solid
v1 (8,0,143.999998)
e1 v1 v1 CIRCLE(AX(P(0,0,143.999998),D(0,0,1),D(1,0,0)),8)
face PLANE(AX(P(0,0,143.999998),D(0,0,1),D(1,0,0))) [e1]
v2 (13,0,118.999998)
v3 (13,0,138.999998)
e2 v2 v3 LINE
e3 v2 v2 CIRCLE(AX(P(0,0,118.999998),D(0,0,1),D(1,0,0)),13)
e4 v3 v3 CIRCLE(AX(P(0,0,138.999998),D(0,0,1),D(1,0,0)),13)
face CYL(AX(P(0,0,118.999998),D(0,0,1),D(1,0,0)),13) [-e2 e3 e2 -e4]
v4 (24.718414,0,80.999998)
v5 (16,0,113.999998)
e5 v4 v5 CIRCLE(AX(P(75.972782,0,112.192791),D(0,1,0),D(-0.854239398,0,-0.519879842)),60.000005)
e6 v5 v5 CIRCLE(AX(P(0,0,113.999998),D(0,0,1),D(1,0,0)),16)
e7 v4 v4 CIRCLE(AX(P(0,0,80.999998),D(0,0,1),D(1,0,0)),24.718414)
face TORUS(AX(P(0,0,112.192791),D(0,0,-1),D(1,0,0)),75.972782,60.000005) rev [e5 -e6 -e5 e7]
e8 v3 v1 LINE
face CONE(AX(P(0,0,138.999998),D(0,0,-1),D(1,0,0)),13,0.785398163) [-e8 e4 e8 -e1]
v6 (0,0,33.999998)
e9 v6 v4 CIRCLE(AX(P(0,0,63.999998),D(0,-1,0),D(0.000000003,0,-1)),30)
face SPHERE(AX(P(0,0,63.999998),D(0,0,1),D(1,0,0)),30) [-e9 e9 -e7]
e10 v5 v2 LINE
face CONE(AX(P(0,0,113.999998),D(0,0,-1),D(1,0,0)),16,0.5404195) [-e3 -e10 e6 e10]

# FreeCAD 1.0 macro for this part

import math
import FreeCAD as App
import Part
import Sketcher
from FreeCAD import Vector
Q = App.Units.Quantity

doc = App.newDocument("Part")
params = doc.addObject("Spreadsheet::Sheet", "Params")
for row, (alias, value) in enumerate([
    ("sketch1_radius", "30 mm"),
    ("sketch1_width", "8 mm"),
    ("sketch1_height", "110 mm"),
    ("sketch1_height2", "20 mm"),
    ("sketch1_height3", "17 mm"),
    ("revolution_angle", "360 deg"),
], start=1):
    params.set(f"A{row}", alias)
    params.set(f"B{row}", "=" + value)
    params.setAlias(f"B{row}", alias)

body = doc.addObject("PartDesign::Body", "Body")

sketch1 = body.newObject("Sketcher::SketchObject", "Sketch")
sketch1.AttachmentSupport = (doc.getObject("XZ_Plane"), [""])
sketch1.MapMode = "FlatFace"
sketch1.addGeometry([
    Part.LineSegment(Vector(8, 144, 0), Vector(0, 144, 0)),
    Part.LineSegment(Vector(0, 144, 0), Vector(0, 34, 0)),
    Part.ArcOfCircle(Part.Circle(Vector(0, 64, 0), Vector(0, 0, 1), 30), math.radians(-90), math.radians(35)),
    Part.ArcOfCircle(Part.Circle(Vector(76, 112, 0), Vector(0, 0, 1), 60), math.radians(178), math.radians(211)),
    Part.LineSegment(Vector(16, 114, 0), Vector(13, 119, 0)),
    Part.LineSegment(Vector(13, 119, 0), Vector(13, 139, 0)),
    Part.LineSegment(Vector(13, 139, 0), Vector(8, 144, 0)),
], False)
sketch1.addConstraint([
    Sketcher.Constraint("Coincident", 0, 2, 1, 1),
    Sketcher.Constraint("Coincident", 1, 2, 2, 1),
    Sketcher.Constraint("Coincident", 2, 2, 3, 2),
    Sketcher.Constraint("Coincident", 3, 1, 4, 1),
    Sketcher.Constraint("Coincident", 4, 2, 5, 1),
    Sketcher.Constraint("Coincident", 5, 2, 6, 1),
    Sketcher.Constraint("Coincident", 6, 2, 0, 1),
    Sketcher.Constraint("Horizontal", 0),
    Sketcher.Constraint("Vertical", 1),
    Sketcher.Constraint("Vertical", 5),
    Sketcher.Constraint("PointOnObject", 2, 3, -2),
    Sketcher.Constraint("PointOnObject", 0, 2, -2),
    Sketcher.Constraint("Radius", 2, Q("30 mm")),
    Sketcher.Constraint("DistanceX", 0, 2, 0, 1, Q("8 mm")),
    Sketcher.Constraint("DistanceY", 1, 2, 1, 1, Q("110 mm")),
    Sketcher.Constraint("DistanceY", 5, 1, 5, 2, Q("20 mm")),
    Sketcher.Constraint("Angle", 6, Q("135 deg")),
    Sketcher.Constraint("DistanceY", -1, 1, 0, 2, Q("143.999998 mm")),
    Sketcher.Constraint("DistanceX", -1, 1, 3, 1, Q("16 mm")),
    Sketcher.Constraint("DistanceX", -1, 1, 4, 2, Q("13 mm")),
    Sketcher.Constraint("DistanceY", 2, 3, 2, 2, Q("17 mm")),
    Sketcher.Constraint("DistanceY", 3, 1, 0, 2, Q("30 mm")),
    Sketcher.Constraint("Radius", 3, Q("60.000005 mm")),
])
sketch1.setExpression("Constraints[12]", "Params.sketch1_radius")
sketch1.setExpression("Constraints[13]", "Params.sketch1_width")
sketch1.setExpression("Constraints[14]", "Params.sketch1_height")
sketch1.setExpression("Constraints[15]", "Params.sketch1_height2")
sketch1.setExpression("Constraints[20]", "Params.sketch1_height3")
revolution = body.newObject("PartDesign::Revolution", "Revolution")
revolution.Profile = sketch1
revolution.ReferenceAxis = (sketch1, ["V_Axis"])
revolution.setExpression("Angle", "Params.revolution_angle")

doc.recompute()
